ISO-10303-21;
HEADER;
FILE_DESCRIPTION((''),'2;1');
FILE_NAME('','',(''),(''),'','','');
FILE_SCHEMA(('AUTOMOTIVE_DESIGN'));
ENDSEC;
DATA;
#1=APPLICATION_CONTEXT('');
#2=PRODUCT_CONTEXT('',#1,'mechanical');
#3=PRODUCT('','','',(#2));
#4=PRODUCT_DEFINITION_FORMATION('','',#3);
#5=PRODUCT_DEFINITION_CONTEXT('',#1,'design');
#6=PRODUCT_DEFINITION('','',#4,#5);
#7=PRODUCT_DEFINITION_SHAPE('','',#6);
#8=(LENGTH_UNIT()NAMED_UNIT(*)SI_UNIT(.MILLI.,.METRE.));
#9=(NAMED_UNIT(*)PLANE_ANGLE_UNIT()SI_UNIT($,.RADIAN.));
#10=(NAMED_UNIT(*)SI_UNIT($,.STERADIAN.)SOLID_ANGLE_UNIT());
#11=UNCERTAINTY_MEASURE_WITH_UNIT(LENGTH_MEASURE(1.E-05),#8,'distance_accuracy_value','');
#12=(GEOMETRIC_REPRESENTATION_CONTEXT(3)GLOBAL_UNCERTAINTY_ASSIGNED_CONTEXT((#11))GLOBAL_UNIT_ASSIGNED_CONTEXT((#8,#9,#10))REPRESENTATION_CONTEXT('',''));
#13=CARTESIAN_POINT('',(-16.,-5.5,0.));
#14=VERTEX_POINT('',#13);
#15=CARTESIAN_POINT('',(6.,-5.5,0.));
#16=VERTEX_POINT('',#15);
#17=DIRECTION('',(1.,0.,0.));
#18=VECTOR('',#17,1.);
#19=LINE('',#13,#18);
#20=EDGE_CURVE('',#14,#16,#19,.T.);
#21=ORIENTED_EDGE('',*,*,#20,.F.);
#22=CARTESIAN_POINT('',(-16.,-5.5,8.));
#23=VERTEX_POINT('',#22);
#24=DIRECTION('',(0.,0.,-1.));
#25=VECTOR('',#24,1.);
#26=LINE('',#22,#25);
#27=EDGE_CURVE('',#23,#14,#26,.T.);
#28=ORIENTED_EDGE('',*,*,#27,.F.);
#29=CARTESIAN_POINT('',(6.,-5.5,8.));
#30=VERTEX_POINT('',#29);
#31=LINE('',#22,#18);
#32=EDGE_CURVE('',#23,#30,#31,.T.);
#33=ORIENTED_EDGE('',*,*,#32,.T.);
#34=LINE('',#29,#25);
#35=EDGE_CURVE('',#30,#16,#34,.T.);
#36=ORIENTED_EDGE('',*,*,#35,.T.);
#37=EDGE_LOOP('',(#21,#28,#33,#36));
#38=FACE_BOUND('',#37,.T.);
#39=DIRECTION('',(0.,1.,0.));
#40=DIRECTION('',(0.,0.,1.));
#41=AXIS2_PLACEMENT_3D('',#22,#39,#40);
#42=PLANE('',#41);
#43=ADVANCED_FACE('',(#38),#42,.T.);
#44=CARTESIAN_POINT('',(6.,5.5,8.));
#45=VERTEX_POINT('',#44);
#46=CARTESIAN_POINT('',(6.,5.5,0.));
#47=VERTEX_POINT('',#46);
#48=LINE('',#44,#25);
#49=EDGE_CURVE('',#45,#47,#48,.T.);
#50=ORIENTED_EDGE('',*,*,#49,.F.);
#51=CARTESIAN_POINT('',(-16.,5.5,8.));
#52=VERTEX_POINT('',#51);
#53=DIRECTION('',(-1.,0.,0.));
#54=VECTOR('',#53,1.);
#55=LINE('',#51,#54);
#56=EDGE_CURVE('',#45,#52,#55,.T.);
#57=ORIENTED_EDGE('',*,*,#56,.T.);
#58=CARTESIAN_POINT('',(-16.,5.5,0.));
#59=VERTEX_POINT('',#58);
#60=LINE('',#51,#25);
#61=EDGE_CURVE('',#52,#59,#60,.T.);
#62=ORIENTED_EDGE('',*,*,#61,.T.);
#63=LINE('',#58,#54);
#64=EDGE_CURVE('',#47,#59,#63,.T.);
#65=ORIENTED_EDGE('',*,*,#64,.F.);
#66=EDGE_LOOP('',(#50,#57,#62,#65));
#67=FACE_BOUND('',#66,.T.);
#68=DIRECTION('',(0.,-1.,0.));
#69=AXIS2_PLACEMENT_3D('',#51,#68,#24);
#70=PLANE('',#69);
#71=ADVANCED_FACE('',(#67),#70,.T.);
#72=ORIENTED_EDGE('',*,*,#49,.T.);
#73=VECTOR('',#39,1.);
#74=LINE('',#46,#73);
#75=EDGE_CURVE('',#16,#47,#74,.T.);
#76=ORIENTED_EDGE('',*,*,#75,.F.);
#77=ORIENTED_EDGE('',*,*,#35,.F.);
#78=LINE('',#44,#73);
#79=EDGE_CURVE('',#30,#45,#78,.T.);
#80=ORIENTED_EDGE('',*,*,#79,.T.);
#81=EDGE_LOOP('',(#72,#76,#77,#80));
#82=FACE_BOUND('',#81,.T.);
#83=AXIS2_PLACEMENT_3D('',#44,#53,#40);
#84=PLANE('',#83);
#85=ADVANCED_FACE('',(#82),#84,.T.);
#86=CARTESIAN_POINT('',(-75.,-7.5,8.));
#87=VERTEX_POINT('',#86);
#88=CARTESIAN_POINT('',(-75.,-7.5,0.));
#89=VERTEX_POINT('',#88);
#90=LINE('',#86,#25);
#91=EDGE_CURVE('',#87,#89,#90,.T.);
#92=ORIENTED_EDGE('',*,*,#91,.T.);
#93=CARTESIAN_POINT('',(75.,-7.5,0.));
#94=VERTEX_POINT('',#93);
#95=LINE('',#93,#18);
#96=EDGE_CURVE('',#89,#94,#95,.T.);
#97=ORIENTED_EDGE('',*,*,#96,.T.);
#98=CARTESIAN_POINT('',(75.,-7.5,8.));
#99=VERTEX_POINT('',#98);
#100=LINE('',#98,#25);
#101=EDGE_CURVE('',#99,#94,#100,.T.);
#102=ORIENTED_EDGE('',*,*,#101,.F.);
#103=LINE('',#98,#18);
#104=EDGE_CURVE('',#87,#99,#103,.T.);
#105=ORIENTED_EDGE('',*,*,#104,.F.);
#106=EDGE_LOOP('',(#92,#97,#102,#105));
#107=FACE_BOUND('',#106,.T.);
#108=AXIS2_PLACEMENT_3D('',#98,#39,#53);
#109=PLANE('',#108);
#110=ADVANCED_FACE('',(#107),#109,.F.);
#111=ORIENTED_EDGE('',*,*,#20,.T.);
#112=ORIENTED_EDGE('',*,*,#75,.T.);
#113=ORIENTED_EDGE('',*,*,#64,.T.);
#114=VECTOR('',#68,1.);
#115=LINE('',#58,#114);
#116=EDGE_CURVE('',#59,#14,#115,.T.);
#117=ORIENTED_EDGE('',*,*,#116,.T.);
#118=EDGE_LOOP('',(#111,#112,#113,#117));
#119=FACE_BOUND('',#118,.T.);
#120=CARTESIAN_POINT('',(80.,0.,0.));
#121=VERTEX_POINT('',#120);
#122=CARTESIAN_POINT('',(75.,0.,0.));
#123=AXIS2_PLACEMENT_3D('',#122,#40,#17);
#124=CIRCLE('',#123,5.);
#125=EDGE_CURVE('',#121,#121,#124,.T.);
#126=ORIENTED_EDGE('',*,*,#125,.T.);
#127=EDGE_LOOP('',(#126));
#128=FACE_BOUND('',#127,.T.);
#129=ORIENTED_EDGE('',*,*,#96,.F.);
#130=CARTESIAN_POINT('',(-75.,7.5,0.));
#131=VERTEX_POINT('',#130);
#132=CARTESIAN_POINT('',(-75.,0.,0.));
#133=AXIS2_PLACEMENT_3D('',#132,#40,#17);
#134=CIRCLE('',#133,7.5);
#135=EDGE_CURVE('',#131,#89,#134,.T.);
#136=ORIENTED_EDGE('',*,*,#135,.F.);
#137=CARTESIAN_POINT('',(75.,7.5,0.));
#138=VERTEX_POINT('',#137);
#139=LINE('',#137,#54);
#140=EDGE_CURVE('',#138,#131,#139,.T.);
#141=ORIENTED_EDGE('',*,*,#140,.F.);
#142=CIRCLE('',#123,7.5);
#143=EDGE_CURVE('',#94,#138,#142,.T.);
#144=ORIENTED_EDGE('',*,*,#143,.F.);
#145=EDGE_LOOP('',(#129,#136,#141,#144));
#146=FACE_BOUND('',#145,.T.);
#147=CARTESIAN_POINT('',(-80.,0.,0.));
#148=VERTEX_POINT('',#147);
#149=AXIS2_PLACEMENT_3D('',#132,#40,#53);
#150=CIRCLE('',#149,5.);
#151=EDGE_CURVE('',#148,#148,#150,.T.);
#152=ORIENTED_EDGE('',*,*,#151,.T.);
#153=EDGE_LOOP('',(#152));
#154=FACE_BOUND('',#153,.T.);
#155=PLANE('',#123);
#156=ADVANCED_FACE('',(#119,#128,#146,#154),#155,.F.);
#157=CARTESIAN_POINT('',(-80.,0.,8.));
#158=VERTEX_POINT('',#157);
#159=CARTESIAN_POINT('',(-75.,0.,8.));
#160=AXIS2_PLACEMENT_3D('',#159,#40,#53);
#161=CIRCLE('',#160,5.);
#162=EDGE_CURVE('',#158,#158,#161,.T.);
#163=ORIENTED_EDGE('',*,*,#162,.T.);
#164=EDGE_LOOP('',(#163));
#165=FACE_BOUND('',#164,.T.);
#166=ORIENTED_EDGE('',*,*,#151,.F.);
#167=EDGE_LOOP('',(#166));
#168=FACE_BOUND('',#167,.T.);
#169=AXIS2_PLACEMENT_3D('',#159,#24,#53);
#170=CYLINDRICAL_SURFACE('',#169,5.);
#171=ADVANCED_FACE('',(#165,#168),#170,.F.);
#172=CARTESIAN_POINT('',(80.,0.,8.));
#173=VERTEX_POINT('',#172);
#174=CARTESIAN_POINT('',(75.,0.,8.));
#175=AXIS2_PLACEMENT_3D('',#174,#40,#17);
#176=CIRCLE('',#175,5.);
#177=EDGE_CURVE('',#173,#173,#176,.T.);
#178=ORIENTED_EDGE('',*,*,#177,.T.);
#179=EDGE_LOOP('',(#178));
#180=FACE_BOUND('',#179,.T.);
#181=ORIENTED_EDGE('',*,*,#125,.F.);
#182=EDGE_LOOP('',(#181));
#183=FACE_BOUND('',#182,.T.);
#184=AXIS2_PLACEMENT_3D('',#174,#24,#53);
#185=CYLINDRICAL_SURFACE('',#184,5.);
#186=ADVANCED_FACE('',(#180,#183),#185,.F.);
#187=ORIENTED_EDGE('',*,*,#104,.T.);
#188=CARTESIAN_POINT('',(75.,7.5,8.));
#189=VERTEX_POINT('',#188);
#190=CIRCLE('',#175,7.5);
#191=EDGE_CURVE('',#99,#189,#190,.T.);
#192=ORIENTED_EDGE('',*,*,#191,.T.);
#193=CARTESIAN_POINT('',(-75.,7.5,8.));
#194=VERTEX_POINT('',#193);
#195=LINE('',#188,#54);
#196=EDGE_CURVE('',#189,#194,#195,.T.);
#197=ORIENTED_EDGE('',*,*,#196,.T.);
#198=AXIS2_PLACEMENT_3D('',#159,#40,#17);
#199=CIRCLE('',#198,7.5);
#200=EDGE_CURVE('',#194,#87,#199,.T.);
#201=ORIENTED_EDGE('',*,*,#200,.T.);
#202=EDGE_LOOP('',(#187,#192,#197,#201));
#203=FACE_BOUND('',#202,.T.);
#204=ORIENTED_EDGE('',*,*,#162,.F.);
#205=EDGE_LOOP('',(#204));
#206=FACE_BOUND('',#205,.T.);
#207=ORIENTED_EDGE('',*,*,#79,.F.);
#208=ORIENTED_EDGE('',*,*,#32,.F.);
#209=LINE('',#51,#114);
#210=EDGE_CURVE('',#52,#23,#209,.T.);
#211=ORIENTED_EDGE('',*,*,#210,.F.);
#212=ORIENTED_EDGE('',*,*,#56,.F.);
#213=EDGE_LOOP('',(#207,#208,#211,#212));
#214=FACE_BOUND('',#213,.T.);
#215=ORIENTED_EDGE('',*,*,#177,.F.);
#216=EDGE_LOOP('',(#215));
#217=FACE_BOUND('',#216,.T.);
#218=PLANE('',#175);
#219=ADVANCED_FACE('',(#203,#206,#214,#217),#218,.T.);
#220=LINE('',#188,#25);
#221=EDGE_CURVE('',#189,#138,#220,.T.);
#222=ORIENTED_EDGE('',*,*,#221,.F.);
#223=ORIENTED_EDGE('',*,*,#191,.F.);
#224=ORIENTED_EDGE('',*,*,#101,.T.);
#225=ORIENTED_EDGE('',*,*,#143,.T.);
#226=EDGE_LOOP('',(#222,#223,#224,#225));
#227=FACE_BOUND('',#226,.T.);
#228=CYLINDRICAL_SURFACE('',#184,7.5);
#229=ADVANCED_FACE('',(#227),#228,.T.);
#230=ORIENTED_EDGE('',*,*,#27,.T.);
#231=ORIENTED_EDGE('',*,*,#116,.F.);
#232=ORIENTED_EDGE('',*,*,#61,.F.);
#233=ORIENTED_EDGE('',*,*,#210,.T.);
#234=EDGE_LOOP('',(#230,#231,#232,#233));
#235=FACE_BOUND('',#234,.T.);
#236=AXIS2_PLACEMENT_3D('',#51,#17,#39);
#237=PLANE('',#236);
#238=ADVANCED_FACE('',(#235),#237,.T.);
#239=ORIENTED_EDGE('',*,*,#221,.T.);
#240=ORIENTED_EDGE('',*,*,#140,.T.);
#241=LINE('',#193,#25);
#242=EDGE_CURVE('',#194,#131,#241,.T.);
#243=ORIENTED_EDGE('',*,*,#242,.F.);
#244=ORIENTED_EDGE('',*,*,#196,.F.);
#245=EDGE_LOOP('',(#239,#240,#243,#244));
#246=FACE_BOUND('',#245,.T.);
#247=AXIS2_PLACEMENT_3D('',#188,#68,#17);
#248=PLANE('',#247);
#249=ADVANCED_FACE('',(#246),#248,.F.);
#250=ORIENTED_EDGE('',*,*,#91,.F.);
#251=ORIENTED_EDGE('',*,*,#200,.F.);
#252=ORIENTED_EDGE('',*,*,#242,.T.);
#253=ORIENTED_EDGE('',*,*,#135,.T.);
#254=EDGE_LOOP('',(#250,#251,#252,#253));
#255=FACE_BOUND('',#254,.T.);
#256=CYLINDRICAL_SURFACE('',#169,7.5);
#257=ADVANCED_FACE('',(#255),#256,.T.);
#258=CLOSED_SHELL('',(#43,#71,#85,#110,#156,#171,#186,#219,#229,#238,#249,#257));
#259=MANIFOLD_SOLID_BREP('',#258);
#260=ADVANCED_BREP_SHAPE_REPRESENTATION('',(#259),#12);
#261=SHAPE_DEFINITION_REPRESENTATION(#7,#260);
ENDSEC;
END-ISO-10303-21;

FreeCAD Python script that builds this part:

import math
import FreeCAD as App
import Part
import Sketcher

V = App.Vector
Q = App.Units.Quantity


def add_polygon(sketch, points):
    """Adds a closed chain of lines whose ends are joined by coincident constraints."""
    first, n = sketch.GeometryCount, len(points)
    for a, b in zip(points, points[1:] + points[:1]):
        sketch.addGeometry(Part.LineSegment(App.Vector(*a, 0), App.Vector(*b, 0)), False)
    for i in range(n):
        sketch.addConstraint(Sketcher.Constraint("Coincident", first + i, 2, first + (i + 1) % n, 1))

doc = App.newDocument("Part")
body = doc.addObject("PartDesign::Body", "Body")

sketch1 = body.newObject("Sketcher::SketchObject", "Sketch")
sketch1.AttachmentSupport = (doc.getObject("XY_Plane"), [""])
sketch1.MapMode = "FlatFace"
sketch1.addGeometry(Part.LineSegment(V(-75, -8, 0), V(75, -8, 0)), False)
sketch1.addGeometry(Part.ArcOfCircle(Part.Circle(V(75, 0, 0), V(0, 0, 1), 8), math.radians(-90), math.radians(90)), False)
sketch1.addGeometry(Part.LineSegment(V(75, 8, 0), V(-75, 8, 0)), False)
sketch1.addGeometry(Part.ArcOfCircle(Part.Circle(V(-75, 0, 0), V(0, 0, 1), 8), math.radians(90), math.radians(270)), False)
sketch1.addGeometry(Part.Circle(V(75, 0, 0), V(0, 0, 1), 5), False)
add_polygon(sketch1, [(-16, -6), (-16, 6), (6, 6), (6, -6)])
sketch1.addGeometry(Part.Circle(V(-75, 0, 0), V(0, 0, 1), 5), False)
sketch1.addConstraint(Sketcher.Constraint("Tangent", 0, 2, 1, 1))
sketch1.addConstraint(Sketcher.Constraint("Tangent", 1, 2, 2, 1))
sketch1.addConstraint(Sketcher.Constraint("Tangent", 2, 2, 3, 1))
sketch1.addConstraint(Sketcher.Constraint("Tangent", 3, 2, 0, 1))
sketch1.addConstraint(Sketcher.Constraint("Horizontal", 0))
sketch1.addConstraint(Sketcher.Constraint("Horizontal", 2))
sketch1.addConstraint(Sketcher.Constraint("Vertical", 5))
sketch1.addConstraint(Sketcher.Constraint("Horizontal", 6))
sketch1.addConstraint(Sketcher.Constraint("Vertical", 7))
sketch1.addConstraint(Sketcher.Constraint("Horizontal", 8))
sketch1.addConstraint(Sketcher.Constraint("Coincident", 4, 3, 1, 3))
sketch1.addConstraint(Sketcher.Constraint("Coincident", 9, 3, 3, 3))
sketch1.addConstraint(Sketcher.Constraint("Equal", 4, 9))
sketch1.addConstraint(Sketcher.Constraint("Symmetric", 1, 3, 3, 3, -1, 1))
sketch1.addConstraint(Sketcher.Constraint("Diameter", 4, Q("10 mm")))
sketch1.addConstraint(Sketcher.Constraint("Radius", 1, Q("7.5 mm")))
sketch1.addConstraint(Sketcher.Constraint("DistanceX", 0, 1, 0, 2, Q("150 mm")))
sketch1.addConstraint(Sketcher.Constraint("DistanceX", 6, 1, 6, 2, Q("22 mm")))
sketch1.addConstraint(Sketcher.Constraint("DistanceY", 5, 1, 5, 2, Q("11 mm")))
sketch1.addConstraint(Sketcher.Constraint("DistanceX", 5, 2, -1, 1, Q("16 mm")))
sketch1.addConstraint(Sketcher.Constraint("DistanceY", 5, 2, 2, 2, Q("2 mm")))
pad1 = body.newObject("PartDesign::Pad", "Pad")
pad1.Profile = sketch1
pad1.Length = 8

doc.recompute()
